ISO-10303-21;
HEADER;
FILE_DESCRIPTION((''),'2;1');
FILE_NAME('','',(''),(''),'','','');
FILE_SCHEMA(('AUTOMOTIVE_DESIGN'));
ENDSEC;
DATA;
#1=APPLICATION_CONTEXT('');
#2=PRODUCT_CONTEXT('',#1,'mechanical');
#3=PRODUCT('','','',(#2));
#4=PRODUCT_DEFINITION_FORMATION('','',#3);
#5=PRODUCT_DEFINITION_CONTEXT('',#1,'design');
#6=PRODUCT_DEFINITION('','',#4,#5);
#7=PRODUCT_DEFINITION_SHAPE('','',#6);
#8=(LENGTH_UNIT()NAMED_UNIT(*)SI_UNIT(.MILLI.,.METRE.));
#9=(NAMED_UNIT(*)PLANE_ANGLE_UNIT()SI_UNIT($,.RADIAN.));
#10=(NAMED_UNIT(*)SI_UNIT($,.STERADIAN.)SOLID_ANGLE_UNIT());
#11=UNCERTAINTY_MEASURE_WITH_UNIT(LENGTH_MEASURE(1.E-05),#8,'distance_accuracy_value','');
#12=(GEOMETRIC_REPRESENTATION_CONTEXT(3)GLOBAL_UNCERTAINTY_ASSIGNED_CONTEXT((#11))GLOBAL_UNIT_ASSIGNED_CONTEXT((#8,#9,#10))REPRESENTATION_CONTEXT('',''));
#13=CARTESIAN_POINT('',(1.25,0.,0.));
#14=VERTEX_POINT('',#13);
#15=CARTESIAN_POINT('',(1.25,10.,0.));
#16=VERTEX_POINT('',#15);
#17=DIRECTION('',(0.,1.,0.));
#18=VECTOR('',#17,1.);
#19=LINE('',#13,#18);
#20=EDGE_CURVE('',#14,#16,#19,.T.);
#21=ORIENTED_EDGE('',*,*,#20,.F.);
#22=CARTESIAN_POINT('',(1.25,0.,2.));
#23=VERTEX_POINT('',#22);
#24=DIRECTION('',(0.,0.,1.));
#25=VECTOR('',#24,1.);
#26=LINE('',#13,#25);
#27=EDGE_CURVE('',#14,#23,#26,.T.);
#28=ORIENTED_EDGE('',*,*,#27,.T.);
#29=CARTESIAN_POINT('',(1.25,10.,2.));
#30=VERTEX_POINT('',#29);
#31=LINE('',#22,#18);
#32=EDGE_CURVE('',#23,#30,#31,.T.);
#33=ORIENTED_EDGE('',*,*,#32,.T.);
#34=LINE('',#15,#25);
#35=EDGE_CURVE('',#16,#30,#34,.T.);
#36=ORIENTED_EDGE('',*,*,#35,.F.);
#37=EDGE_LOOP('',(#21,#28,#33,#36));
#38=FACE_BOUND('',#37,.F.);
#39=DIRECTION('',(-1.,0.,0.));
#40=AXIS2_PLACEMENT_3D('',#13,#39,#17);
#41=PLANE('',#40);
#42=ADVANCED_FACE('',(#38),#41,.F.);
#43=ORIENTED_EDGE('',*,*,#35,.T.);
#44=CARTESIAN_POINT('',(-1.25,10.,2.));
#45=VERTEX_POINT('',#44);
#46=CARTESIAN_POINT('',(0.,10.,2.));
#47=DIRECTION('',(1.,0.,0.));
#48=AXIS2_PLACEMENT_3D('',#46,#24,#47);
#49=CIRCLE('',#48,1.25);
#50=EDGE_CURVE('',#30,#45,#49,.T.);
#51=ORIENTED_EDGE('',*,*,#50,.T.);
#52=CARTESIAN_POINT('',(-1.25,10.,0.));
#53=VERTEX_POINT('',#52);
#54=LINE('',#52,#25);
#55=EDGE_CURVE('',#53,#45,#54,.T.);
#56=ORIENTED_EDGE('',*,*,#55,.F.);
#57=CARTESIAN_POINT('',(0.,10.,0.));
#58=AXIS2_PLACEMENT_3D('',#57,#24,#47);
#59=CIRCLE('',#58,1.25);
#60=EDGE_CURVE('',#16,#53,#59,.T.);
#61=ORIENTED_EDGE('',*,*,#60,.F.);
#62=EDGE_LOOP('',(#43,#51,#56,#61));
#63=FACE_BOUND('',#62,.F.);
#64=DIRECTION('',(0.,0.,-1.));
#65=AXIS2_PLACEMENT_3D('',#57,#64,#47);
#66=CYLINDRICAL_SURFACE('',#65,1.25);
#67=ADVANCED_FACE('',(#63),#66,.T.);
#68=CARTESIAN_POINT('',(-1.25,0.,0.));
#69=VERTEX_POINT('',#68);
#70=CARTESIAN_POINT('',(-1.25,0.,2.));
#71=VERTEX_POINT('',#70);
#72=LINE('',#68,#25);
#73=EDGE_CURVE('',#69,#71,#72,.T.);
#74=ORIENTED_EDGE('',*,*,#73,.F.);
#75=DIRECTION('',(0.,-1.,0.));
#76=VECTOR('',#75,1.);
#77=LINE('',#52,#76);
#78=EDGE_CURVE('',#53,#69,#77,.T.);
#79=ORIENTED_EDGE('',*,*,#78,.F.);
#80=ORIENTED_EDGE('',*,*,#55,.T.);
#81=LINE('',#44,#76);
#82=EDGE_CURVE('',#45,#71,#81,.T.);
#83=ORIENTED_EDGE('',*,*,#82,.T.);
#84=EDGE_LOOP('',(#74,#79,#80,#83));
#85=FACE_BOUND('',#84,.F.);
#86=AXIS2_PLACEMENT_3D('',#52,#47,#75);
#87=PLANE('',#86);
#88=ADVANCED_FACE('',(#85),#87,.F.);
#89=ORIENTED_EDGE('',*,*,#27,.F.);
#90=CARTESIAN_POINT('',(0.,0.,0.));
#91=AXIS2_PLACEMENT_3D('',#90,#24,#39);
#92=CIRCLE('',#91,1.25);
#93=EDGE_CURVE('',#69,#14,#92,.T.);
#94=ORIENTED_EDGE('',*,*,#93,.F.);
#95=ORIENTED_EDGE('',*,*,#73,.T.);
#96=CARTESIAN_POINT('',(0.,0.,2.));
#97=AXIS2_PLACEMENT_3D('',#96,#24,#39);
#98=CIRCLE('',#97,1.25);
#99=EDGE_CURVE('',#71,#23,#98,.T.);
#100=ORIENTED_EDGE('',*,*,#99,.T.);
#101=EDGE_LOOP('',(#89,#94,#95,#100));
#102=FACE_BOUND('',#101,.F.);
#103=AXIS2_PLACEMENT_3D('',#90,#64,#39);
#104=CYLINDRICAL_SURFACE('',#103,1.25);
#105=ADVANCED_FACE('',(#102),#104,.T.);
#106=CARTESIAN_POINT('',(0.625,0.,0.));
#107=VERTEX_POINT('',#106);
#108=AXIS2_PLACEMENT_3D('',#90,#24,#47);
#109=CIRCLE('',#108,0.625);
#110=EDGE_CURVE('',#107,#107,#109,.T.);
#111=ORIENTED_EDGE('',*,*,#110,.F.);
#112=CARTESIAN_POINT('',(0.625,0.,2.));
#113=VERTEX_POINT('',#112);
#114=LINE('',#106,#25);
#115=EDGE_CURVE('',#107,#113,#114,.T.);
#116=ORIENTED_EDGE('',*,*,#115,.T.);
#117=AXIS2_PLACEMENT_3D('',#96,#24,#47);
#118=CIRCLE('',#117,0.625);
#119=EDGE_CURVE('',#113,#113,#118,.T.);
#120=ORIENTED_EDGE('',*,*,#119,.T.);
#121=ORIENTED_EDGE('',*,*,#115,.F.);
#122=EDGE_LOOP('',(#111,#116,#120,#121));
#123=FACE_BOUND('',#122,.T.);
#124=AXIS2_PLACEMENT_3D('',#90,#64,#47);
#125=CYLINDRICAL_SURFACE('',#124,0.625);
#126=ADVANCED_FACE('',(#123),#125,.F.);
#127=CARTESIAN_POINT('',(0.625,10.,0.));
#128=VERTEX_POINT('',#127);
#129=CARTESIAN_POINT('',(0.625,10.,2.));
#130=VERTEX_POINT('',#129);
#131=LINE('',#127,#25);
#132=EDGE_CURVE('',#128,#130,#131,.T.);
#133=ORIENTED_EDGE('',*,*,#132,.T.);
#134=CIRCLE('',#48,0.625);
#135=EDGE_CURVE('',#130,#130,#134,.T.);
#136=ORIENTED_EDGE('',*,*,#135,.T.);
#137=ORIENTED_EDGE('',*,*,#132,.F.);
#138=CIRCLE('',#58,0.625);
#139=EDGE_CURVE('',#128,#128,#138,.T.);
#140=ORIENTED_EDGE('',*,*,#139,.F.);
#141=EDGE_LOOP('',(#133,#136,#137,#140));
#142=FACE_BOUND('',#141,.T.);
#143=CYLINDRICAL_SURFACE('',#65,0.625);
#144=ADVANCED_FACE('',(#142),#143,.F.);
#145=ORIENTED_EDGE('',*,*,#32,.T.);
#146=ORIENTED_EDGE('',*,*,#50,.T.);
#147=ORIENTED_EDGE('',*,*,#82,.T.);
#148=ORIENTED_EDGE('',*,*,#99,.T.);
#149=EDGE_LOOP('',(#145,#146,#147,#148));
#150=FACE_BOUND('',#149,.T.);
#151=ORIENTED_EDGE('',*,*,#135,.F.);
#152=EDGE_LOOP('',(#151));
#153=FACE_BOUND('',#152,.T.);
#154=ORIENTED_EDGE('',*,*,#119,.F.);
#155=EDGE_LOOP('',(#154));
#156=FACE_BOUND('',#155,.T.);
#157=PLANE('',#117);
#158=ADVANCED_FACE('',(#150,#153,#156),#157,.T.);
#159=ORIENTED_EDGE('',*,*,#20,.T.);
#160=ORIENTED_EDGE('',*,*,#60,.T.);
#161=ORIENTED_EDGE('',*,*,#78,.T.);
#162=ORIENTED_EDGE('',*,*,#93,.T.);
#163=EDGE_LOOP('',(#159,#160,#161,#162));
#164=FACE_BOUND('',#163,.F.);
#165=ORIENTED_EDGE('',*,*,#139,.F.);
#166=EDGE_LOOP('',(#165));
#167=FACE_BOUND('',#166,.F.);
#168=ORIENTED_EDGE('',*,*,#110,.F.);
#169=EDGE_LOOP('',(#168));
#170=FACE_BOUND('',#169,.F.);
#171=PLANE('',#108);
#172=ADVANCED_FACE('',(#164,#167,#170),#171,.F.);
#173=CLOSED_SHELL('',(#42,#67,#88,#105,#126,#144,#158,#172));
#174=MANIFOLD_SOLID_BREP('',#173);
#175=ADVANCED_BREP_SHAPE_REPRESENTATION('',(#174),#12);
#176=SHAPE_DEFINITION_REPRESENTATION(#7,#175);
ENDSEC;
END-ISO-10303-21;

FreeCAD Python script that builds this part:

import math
import FreeCAD as App
import Part
import Sketcher
from FreeCAD import Vector

doc = App.newDocument("Part")
body = doc.addObject("PartDesign::Body", "Body")

# Sketch on XY plane
sketch1 = body.newObject("Sketcher::SketchObject", "Sketch")
sketch1.AttachmentSupport = (doc.getObject("XY_Plane"), [""])
sketch1.MapMode = "FlatFace"
sketch1.addGeometry([
    Part.ArcOfCircle(Part.Circle(Vector(0, 0, 0), Vector(0, 0, 1), 1.2), math.radians(180), math.radians(360)),  # 0
    Part.LineSegment(Vector(1.2, 0, 0), Vector(1.2, 10, 0)),  # 1
    Part.ArcOfCircle(Part.Circle(Vector(0, 10, 0), Vector(0, 0, 1), 1.2), math.radians(0), math.radians(180)),  # 2
    Part.LineSegment(Vector(-1.2, 10, 0), Vector(-1.2, 0, 0)),  # 3
    Part.Circle(Vector(0, 0, 0), Vector(0, 0, 1), 0.6),  # 4
    Part.Circle(Vector(0, 10, 0), Vector(0, 0, 1), 0.6),  # 5
], False)
sketch1.addConstraint([
    Sketcher.Constraint("Tangent", 0, 2, 1, 1),
    Sketcher.Constraint("Tangent", 1, 2, 2, 1),
    Sketcher.Constraint("Tangent", 2, 2, 3, 1),
    Sketcher.Constraint("Tangent", 3, 2, 0, 1),
    Sketcher.Constraint("Vertical", 1),
    Sketcher.Constraint("Vertical", 3),
    Sketcher.Constraint("Coincident", 0, 3, -1, 1),
    Sketcher.Constraint("Coincident", 4, 3, -1, 1),
    Sketcher.Constraint("Coincident", 5, 3, 2, 3),
    Sketcher.Constraint("Equal", 4, 5),
    Sketcher.Constraint("Diameter", 4, 1.25),
    Sketcher.Constraint("DistanceY", 1, 1, 1, 2, 10.0),
    Sketcher.Constraint("Radius", 0, 1.25),
])
pad1 = body.newObject("PartDesign::Pad", "Pad")
pad1.Profile = sketch1
pad1.Length = 2

doc.recompute()
